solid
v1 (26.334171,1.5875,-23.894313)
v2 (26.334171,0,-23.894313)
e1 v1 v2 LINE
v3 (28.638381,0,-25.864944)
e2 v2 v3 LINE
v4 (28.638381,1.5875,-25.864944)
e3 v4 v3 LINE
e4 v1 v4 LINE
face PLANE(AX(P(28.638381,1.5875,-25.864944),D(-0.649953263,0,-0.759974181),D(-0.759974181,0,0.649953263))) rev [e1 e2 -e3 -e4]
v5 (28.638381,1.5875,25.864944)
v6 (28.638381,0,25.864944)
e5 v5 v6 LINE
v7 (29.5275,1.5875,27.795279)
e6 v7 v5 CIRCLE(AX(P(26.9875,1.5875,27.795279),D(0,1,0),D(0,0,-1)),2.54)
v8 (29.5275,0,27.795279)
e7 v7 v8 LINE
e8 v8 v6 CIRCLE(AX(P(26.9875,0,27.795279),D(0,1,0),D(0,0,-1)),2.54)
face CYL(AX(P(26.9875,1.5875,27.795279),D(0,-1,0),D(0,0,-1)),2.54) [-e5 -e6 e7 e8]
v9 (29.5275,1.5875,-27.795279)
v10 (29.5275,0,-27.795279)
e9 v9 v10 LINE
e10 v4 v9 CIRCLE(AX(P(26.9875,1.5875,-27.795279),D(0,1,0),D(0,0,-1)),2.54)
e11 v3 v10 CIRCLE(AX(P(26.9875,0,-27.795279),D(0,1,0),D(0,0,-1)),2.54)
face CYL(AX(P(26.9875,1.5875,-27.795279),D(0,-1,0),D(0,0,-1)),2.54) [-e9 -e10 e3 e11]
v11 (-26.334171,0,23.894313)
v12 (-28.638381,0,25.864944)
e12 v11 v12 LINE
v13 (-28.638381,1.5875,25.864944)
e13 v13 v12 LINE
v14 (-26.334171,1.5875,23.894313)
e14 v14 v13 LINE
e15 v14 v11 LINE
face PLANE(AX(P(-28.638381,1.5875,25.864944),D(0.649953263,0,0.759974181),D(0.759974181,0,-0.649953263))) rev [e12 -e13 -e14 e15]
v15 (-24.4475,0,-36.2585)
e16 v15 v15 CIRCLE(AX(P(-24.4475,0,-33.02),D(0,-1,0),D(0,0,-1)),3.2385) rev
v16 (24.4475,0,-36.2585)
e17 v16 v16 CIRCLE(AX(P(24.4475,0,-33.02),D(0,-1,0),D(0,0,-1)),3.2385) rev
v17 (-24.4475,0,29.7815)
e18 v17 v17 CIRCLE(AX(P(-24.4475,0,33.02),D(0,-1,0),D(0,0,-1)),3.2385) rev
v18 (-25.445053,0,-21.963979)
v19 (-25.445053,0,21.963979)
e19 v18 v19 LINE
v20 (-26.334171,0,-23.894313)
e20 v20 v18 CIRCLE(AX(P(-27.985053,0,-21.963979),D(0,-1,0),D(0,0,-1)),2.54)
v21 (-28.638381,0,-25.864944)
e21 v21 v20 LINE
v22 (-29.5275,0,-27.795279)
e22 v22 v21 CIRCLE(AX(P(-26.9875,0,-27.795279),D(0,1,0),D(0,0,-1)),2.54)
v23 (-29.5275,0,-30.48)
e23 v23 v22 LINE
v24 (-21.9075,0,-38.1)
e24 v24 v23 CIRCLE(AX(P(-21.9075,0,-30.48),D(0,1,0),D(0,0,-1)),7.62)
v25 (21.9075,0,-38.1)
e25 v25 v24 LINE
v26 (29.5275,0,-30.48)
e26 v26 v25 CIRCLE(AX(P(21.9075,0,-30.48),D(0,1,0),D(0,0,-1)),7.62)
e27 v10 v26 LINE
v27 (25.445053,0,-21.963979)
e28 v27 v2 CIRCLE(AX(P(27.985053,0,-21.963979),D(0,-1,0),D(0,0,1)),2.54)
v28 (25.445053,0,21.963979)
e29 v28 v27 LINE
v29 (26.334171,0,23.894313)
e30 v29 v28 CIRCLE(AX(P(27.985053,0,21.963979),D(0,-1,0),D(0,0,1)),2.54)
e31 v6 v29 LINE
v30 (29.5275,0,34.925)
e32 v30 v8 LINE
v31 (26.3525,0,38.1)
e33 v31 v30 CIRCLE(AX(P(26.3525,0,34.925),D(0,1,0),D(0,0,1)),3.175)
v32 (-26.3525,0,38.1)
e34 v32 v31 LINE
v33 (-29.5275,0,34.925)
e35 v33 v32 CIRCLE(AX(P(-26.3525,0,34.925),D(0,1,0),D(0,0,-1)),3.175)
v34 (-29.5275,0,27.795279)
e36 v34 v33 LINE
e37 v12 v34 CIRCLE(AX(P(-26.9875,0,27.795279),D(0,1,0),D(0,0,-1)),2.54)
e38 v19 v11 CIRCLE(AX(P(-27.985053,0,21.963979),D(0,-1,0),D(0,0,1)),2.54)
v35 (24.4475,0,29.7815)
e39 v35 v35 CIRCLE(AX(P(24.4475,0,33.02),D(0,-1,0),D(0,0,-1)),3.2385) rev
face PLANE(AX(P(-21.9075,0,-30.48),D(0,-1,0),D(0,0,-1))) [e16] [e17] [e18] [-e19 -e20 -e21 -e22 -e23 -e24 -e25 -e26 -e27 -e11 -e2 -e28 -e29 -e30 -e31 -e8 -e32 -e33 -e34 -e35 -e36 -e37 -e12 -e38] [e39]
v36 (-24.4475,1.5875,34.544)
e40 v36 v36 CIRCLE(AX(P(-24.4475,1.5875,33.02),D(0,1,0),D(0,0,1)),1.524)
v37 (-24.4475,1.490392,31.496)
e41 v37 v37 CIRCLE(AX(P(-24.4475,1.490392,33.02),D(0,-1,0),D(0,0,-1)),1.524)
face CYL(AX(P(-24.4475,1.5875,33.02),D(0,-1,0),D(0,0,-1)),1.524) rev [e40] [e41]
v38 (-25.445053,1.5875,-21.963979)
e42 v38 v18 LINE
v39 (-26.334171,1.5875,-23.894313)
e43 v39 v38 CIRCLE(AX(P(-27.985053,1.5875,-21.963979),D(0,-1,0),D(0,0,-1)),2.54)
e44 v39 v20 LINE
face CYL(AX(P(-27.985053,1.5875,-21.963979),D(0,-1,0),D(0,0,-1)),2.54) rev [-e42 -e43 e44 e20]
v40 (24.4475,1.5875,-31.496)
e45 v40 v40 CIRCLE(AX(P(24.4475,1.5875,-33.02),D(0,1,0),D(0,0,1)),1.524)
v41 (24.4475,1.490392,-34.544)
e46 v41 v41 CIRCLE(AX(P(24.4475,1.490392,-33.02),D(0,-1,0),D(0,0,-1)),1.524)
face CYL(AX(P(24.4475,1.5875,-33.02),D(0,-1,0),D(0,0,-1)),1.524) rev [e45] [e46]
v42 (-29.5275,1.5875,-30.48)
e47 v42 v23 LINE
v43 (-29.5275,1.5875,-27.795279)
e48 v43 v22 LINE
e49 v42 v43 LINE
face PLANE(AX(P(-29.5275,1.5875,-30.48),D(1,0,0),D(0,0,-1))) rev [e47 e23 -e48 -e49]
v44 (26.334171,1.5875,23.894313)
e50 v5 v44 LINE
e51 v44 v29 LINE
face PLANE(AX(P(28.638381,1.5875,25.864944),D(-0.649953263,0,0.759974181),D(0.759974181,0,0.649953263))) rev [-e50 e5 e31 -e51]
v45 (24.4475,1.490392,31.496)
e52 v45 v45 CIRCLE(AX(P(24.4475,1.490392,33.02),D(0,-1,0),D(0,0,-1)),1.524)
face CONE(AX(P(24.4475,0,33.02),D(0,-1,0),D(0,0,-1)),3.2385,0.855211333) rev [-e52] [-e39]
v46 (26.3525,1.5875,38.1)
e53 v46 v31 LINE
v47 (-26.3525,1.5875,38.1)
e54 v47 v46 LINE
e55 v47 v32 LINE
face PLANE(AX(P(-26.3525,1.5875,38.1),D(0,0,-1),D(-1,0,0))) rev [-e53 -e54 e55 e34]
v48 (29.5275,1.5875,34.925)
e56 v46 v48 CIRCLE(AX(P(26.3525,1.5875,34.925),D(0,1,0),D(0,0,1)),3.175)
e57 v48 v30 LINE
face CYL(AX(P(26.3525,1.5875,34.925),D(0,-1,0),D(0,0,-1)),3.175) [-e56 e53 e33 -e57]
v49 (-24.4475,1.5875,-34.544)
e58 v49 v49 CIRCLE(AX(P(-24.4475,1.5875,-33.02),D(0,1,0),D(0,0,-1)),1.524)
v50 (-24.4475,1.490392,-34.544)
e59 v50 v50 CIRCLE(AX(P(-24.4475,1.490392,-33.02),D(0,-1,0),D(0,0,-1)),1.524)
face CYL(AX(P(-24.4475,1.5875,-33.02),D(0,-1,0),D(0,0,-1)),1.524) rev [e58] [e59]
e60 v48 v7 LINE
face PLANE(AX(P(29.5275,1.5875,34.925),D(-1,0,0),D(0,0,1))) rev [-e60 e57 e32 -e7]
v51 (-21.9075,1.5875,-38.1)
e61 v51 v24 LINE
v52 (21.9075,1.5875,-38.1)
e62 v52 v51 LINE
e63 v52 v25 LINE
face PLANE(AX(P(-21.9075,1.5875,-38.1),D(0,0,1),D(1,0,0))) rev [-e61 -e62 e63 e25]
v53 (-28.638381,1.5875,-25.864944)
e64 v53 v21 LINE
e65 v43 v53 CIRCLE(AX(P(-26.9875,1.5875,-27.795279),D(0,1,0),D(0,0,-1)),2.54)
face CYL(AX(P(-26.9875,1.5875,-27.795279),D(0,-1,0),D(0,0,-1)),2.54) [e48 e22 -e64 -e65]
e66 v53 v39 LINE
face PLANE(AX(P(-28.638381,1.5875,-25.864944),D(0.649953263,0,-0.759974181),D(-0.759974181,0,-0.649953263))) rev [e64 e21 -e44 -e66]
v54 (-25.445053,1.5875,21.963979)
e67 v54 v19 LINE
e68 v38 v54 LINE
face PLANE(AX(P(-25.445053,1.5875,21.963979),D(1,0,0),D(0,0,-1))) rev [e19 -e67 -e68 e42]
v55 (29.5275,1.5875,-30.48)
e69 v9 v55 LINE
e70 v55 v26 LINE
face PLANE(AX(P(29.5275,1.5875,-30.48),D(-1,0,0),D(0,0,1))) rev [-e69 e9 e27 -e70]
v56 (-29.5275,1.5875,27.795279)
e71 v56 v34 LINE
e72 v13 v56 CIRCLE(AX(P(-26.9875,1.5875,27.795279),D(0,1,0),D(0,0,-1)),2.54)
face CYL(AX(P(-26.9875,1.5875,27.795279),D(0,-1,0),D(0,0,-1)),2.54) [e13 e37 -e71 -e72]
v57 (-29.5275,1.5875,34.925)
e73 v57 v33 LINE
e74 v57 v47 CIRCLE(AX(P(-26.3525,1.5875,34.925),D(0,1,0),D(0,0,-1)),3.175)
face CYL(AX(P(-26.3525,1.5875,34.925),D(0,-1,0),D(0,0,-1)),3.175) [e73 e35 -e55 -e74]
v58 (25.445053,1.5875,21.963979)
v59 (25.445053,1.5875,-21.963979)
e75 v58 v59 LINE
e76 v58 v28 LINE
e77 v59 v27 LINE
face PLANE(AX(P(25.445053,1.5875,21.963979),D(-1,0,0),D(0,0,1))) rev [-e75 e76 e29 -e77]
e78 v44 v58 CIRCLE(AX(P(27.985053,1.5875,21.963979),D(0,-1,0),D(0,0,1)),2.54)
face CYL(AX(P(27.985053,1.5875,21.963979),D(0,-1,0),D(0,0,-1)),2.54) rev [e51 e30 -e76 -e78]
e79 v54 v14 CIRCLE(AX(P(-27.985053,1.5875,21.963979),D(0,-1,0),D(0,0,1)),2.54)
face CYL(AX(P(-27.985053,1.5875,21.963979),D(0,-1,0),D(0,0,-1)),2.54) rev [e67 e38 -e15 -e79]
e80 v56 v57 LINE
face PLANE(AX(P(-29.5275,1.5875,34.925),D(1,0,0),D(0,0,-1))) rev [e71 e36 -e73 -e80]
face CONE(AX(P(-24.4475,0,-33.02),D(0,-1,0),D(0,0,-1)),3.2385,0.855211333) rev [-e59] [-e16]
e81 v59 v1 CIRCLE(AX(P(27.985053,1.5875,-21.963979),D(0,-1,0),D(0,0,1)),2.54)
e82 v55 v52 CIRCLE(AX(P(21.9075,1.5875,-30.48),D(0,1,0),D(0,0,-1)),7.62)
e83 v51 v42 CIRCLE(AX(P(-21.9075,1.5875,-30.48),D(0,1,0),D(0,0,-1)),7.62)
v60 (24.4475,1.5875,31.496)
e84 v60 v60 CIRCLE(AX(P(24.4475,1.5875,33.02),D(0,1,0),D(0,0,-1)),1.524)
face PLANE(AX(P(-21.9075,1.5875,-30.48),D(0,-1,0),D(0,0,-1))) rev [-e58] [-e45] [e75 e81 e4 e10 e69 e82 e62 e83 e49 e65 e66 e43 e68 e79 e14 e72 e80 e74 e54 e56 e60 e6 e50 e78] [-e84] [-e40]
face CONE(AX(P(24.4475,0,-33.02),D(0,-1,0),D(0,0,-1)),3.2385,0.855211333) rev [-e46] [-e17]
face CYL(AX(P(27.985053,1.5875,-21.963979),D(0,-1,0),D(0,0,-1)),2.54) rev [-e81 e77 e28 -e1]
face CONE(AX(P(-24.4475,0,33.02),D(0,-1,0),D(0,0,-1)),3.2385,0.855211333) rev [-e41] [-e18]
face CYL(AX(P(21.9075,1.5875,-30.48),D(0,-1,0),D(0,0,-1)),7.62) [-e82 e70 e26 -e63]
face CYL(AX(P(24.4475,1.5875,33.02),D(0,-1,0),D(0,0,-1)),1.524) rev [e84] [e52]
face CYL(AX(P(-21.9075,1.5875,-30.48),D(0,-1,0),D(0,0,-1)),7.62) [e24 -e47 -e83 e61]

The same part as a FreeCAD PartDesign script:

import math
import FreeCAD as App
import Part
import Sketcher
from FreeCAD import Vector
Q = App.Units.Quantity


def edges_at(feature, points):
    """Names of the edges that pass closest to the given points."""
    edges = feature.Shape.Edges
    near = lambda p: min(range(len(edges)), key=lambda i: edges[i].distToShape(Part.Vertex(*p))[0])
    return sorted({f"Edge{near(p) + 1}" for p in points})

doc = App.newDocument("Part")
body = doc.addObject("PartDesign::Body", "Body")

# Sketch on XZ plane
sketch1 = doc.addObject("Sketcher::SketchObject", "Sketch")
body.addObject(sketch1)
sketch1.AttachmentSupport = (doc.XZ_Plane, [""])
sketch1.MapMode = "FlatFace"
sketch1.addGeometry([
    Part.LineSegment(Vector(-26.3525, 38.1, 0), Vector(26.3525, 38.1, 0)),  # 0
    Part.ArcOfCircle(Part.Circle(Vector(26.3525, 34.925, 0), Vector(0, 0, 1), 3.175), math.radians(0), math.radians(90)),  # 1
    Part.LineSegment(Vector(29.5275, 34.925, 0), Vector(29.5275, 27.795279, 0)),  # 2
    Part.ArcOfCircle(Part.Circle(Vector(26.9875, 27.795279, 0), Vector(0, 0, 1), 2.54), math.radians(-49.461922), math.radians(0)),  # 3
    Part.LineSegment(Vector(28.638381, 25.864944, 0), Vector(26.334171, 23.894313, 0)),  # 4
    Part.ArcOfCircle(Part.Circle(Vector(27.985053, 21.963979, 0), Vector(0, 0, 1), 2.54), math.radians(130.538078), math.radians(180)),  # 5
    Part.LineSegment(Vector(25.445053, 21.963979, 0), Vector(25.445053, -21.963979, 0)),  # 6
    Part.ArcOfCircle(Part.Circle(Vector(27.985053, -21.963979, 0), Vector(0, 0, 1), 2.54), math.radians(180), math.radians(229.461922)),  # 7
    Part.LineSegment(Vector(26.334171, -23.894313, 0), Vector(28.638381, -25.864944, 0)),  # 8
    Part.ArcOfCircle(Part.Circle(Vector(26.9875, -27.795279, 0), Vector(0, 0, 1), 2.54), math.radians(0), math.radians(49.461922)),  # 9
    Part.LineSegment(Vector(29.5275, -27.795279, 0), Vector(29.5275, -30.48, 0)),  # 10
    Part.ArcOfCircle(Part.Circle(Vector(21.9075, -30.48, 0), Vector(0, 0, 1), 7.62), math.radians(-90), math.radians(0)),  # 11
    Part.LineSegment(Vector(21.9075, -38.1, 0), Vector(-21.9075, -38.1, 0)),  # 12
    Part.ArcOfCircle(Part.Circle(Vector(-21.9075, -30.48, 0), Vector(0, 0, 1), 7.62), math.radians(180), math.radians(270)),  # 13
    Part.LineSegment(Vector(-29.5275, -30.48, 0), Vector(-29.5275, -27.795279, 0)),  # 14
    Part.ArcOfCircle(Part.Circle(Vector(-26.9875, -27.795279, 0), Vector(0, 0, 1), 2.54), math.radians(130.538078), math.radians(180)),  # 15
    Part.LineSegment(Vector(-28.638381, -25.864944, 0), Vector(-26.334171, -23.894313, 0)),  # 16
    Part.ArcOfCircle(Part.Circle(Vector(-27.985053, -21.963979, 0), Vector(0, 0, 1), 2.54), math.radians(-49.461922), math.radians(0)),  # 17
    Part.LineSegment(Vector(-25.445053, -21.963979, 0), Vector(-25.445053, 21.963979, 0)),  # 18
    Part.ArcOfCircle(Part.Circle(Vector(-27.985053, 21.963979, 0), Vector(0, 0, 1), 2.54), math.radians(0), math.radians(49.461922)),  # 19
    Part.LineSegment(Vector(-26.334171, 23.894313, 0), Vector(-28.638381, 25.864944, 0)),  # 20
    Part.ArcOfCircle(Part.Circle(Vector(-26.9875, 27.795279, 0), Vector(0, 0, 1), 2.54), math.radians(-180), math.radians(-130.538078)),  # 21
    Part.LineSegment(Vector(-29.5275, 27.795279, 0), Vector(-29.5275, 34.925, 0)),  # 22
    Part.ArcOfCircle(Part.Circle(Vector(-26.3525, 34.925, 0), Vector(0, 0, 1), 3.175), math.radians(90), math.radians(180)),  # 23
    Part.Circle(Vector(-24.4475, 33.02, 0), Vector(0, 0, 1), 1.524),  # 24
    Part.Circle(Vector(24.4475, 33.02, 0), Vector(0, 0, 1), 1.524),  # 25
    Part.Circle(Vector(-24.4475, -33.02, 0), Vector(0, 0, 1), 1.524),  # 26
    Part.Circle(Vector(24.4475, -33.02, 0), Vector(0, 0, 1), 1.524),  # 27
], False)
sketch1.addConstraint([
    Sketcher.Constraint("Tangent", 0, 2, 1, 2),
    Sketcher.Constraint("Tangent", 1, 1, 2, 1),
    Sketcher.Constraint("Tangent", 2, 2, 3, 2),
    Sketcher.Constraint("Tangent", 3, 1, 4, 1),
    Sketcher.Constraint("Tangent", 4, 2, 5, 1),
    Sketcher.Constraint("Tangent", 5, 2, 6, 1),
    Sketcher.Constraint("Tangent", 6, 2, 7, 1),
    Sketcher.Constraint("Tangent", 7, 2, 8, 1),
    Sketcher.Constraint("Tangent", 8, 2, 9, 2),
    Sketcher.Constraint("Tangent", 9, 1, 10, 1),
    Sketcher.Constraint("Tangent", 10, 2, 11, 2),
    Sketcher.Constraint("Tangent", 11, 1, 12, 1),
    Sketcher.Constraint("Tangent", 12, 2, 13, 2),
    Sketcher.Constraint("Tangent", 13, 1, 14, 1),
    Sketcher.Constraint("Tangent", 14, 2, 15, 2),
    Sketcher.Constraint("Tangent", 15, 1, 16, 1),
    Sketcher.Constraint("Tangent", 16, 2, 17, 1),
    Sketcher.Constraint("Tangent", 17, 2, 18, 1),
    Sketcher.Constraint("Tangent", 18, 2, 19, 1),
    Sketcher.Constraint("Tangent", 19, 2, 20, 1),
    Sketcher.Constraint("Tangent", 20, 2, 21, 2),
    Sketcher.Constraint("Tangent", 21, 1, 22, 1),
    Sketcher.Constraint("Tangent", 22, 2, 23, 2),
    Sketcher.Constraint("Tangent", 23, 1, 0, 1),
    Sketcher.Constraint("Horizontal", 0),
    Sketcher.Constraint("Vertical", 2),
    Sketcher.Constraint("Vertical", 6),
    Sketcher.Constraint("Vertical", 10),
    Sketcher.Constraint("Horizontal", 12),
    Sketcher.Constraint("Vertical", 14),
    Sketcher.Constraint("Vertical", 18),
    Sketcher.Constraint("Vertical", 22),
    Sketcher.Constraint("Equal", 3, 5),
    Sketcher.Constraint("Equal", 5, 7),
    Sketcher.Constraint("Equal", 7, 9),
    Sketcher.Constraint("Equal", 11, 13),
    Sketcher.Constraint("Equal", 9, 15),
    Sketcher.Constraint("Equal", 15, 17),
    Sketcher.Constraint("Equal", 17, 19),
    Sketcher.Constraint("Equal", 19, 21),
    Sketcher.Constraint("Equal", 1, 23),
    Sketcher.Constraint("Equal", 24, 25),
    Sketcher.Constraint("Equal", 25, 26),
    Sketcher.Constraint("Equal", 26, 27),
    Sketcher.Constraint("Symmetric", 3, 3, 15, 3, -1, 1),
    Sketcher.Constraint("Symmetric", 5, 3, 17, 3, -1, 1),
    Sketcher.Constraint("Symmetric", 9, 3, 21, 3, -1, 1),
    Sketcher.Constraint("Symmetric", 25, 3, 26, 3, -1, 1),
    Sketcher.Constraint("Symmetric", 24, 3, 27, 3, -1, 1),
    Sketcher.Constraint("Symmetric", 9, 3, 15, 3, -2),
    Sketcher.Constraint("Symmetric", 24, 3, 25, 3, -2),
    Sketcher.Constraint("Parallel", 8, 20),
    Sketcher.Constraint("Horizontal", 7, 3, 17, 3),
    Sketcher.Constraint("Radius", 3, Q("0.1 in")),
    Sketcher.Constraint("Radius", 11, Q("0.3 in")),
    Sketcher.Constraint("Diameter", 24, Q("0.12 in")),
    Sketcher.Constraint("Radius", 1, Q("0.125 in")),
    Sketcher.Constraint("DistanceX", 24, 3, 1, 3, Q("2 in")),
    Sketcher.Constraint("DistanceY", 11, 3, -1, 1, Q("1.2 in")),
    Sketcher.Constraint("DistanceY", -1, 1, 24, 3, Q("1.3 in")),
    Sketcher.Constraint("DistanceY", -1, 1, 0, 2, Q("1.5 in")),
    Sketcher.Constraint("DistanceX", 21, 3, 1, 3, Q("2.1 in")),
    Sketcher.Constraint("DistanceY", 2, 2, 2, 1, 7.129721),
    Sketcher.Constraint("DistanceY", 5, 3, 3, 3, 5.8313),
    Sketcher.Constraint("Distance", 4, 3.031958),
])
pad1 = doc.addObject("PartDesign::Pad", "Pad")
body.addObject(pad1)
pad1.Profile = sketch1
pad1.Length = Q("0.0625 in")
pad1.Reversed = True
doc.recompute()

chamfer = doc.addObject("PartDesign::Chamfer", "Chamfer")
body.addObject(chamfer)
chamfer.Base = (pad1, edges_at(pad1, [
    (22.924, 0, -33.02),
    (-25.971, 0, 33.02),
    (-25.971, 0, -33.02),
    (22.924, 0, 33.02),
]))
chamfer.ChamferType = "Two distances"
chamfer.Size = Q("0.0675 in")
chamfer.Size2 = 1.490392
chamfer.FlipDirection = True

doc.recompute()
